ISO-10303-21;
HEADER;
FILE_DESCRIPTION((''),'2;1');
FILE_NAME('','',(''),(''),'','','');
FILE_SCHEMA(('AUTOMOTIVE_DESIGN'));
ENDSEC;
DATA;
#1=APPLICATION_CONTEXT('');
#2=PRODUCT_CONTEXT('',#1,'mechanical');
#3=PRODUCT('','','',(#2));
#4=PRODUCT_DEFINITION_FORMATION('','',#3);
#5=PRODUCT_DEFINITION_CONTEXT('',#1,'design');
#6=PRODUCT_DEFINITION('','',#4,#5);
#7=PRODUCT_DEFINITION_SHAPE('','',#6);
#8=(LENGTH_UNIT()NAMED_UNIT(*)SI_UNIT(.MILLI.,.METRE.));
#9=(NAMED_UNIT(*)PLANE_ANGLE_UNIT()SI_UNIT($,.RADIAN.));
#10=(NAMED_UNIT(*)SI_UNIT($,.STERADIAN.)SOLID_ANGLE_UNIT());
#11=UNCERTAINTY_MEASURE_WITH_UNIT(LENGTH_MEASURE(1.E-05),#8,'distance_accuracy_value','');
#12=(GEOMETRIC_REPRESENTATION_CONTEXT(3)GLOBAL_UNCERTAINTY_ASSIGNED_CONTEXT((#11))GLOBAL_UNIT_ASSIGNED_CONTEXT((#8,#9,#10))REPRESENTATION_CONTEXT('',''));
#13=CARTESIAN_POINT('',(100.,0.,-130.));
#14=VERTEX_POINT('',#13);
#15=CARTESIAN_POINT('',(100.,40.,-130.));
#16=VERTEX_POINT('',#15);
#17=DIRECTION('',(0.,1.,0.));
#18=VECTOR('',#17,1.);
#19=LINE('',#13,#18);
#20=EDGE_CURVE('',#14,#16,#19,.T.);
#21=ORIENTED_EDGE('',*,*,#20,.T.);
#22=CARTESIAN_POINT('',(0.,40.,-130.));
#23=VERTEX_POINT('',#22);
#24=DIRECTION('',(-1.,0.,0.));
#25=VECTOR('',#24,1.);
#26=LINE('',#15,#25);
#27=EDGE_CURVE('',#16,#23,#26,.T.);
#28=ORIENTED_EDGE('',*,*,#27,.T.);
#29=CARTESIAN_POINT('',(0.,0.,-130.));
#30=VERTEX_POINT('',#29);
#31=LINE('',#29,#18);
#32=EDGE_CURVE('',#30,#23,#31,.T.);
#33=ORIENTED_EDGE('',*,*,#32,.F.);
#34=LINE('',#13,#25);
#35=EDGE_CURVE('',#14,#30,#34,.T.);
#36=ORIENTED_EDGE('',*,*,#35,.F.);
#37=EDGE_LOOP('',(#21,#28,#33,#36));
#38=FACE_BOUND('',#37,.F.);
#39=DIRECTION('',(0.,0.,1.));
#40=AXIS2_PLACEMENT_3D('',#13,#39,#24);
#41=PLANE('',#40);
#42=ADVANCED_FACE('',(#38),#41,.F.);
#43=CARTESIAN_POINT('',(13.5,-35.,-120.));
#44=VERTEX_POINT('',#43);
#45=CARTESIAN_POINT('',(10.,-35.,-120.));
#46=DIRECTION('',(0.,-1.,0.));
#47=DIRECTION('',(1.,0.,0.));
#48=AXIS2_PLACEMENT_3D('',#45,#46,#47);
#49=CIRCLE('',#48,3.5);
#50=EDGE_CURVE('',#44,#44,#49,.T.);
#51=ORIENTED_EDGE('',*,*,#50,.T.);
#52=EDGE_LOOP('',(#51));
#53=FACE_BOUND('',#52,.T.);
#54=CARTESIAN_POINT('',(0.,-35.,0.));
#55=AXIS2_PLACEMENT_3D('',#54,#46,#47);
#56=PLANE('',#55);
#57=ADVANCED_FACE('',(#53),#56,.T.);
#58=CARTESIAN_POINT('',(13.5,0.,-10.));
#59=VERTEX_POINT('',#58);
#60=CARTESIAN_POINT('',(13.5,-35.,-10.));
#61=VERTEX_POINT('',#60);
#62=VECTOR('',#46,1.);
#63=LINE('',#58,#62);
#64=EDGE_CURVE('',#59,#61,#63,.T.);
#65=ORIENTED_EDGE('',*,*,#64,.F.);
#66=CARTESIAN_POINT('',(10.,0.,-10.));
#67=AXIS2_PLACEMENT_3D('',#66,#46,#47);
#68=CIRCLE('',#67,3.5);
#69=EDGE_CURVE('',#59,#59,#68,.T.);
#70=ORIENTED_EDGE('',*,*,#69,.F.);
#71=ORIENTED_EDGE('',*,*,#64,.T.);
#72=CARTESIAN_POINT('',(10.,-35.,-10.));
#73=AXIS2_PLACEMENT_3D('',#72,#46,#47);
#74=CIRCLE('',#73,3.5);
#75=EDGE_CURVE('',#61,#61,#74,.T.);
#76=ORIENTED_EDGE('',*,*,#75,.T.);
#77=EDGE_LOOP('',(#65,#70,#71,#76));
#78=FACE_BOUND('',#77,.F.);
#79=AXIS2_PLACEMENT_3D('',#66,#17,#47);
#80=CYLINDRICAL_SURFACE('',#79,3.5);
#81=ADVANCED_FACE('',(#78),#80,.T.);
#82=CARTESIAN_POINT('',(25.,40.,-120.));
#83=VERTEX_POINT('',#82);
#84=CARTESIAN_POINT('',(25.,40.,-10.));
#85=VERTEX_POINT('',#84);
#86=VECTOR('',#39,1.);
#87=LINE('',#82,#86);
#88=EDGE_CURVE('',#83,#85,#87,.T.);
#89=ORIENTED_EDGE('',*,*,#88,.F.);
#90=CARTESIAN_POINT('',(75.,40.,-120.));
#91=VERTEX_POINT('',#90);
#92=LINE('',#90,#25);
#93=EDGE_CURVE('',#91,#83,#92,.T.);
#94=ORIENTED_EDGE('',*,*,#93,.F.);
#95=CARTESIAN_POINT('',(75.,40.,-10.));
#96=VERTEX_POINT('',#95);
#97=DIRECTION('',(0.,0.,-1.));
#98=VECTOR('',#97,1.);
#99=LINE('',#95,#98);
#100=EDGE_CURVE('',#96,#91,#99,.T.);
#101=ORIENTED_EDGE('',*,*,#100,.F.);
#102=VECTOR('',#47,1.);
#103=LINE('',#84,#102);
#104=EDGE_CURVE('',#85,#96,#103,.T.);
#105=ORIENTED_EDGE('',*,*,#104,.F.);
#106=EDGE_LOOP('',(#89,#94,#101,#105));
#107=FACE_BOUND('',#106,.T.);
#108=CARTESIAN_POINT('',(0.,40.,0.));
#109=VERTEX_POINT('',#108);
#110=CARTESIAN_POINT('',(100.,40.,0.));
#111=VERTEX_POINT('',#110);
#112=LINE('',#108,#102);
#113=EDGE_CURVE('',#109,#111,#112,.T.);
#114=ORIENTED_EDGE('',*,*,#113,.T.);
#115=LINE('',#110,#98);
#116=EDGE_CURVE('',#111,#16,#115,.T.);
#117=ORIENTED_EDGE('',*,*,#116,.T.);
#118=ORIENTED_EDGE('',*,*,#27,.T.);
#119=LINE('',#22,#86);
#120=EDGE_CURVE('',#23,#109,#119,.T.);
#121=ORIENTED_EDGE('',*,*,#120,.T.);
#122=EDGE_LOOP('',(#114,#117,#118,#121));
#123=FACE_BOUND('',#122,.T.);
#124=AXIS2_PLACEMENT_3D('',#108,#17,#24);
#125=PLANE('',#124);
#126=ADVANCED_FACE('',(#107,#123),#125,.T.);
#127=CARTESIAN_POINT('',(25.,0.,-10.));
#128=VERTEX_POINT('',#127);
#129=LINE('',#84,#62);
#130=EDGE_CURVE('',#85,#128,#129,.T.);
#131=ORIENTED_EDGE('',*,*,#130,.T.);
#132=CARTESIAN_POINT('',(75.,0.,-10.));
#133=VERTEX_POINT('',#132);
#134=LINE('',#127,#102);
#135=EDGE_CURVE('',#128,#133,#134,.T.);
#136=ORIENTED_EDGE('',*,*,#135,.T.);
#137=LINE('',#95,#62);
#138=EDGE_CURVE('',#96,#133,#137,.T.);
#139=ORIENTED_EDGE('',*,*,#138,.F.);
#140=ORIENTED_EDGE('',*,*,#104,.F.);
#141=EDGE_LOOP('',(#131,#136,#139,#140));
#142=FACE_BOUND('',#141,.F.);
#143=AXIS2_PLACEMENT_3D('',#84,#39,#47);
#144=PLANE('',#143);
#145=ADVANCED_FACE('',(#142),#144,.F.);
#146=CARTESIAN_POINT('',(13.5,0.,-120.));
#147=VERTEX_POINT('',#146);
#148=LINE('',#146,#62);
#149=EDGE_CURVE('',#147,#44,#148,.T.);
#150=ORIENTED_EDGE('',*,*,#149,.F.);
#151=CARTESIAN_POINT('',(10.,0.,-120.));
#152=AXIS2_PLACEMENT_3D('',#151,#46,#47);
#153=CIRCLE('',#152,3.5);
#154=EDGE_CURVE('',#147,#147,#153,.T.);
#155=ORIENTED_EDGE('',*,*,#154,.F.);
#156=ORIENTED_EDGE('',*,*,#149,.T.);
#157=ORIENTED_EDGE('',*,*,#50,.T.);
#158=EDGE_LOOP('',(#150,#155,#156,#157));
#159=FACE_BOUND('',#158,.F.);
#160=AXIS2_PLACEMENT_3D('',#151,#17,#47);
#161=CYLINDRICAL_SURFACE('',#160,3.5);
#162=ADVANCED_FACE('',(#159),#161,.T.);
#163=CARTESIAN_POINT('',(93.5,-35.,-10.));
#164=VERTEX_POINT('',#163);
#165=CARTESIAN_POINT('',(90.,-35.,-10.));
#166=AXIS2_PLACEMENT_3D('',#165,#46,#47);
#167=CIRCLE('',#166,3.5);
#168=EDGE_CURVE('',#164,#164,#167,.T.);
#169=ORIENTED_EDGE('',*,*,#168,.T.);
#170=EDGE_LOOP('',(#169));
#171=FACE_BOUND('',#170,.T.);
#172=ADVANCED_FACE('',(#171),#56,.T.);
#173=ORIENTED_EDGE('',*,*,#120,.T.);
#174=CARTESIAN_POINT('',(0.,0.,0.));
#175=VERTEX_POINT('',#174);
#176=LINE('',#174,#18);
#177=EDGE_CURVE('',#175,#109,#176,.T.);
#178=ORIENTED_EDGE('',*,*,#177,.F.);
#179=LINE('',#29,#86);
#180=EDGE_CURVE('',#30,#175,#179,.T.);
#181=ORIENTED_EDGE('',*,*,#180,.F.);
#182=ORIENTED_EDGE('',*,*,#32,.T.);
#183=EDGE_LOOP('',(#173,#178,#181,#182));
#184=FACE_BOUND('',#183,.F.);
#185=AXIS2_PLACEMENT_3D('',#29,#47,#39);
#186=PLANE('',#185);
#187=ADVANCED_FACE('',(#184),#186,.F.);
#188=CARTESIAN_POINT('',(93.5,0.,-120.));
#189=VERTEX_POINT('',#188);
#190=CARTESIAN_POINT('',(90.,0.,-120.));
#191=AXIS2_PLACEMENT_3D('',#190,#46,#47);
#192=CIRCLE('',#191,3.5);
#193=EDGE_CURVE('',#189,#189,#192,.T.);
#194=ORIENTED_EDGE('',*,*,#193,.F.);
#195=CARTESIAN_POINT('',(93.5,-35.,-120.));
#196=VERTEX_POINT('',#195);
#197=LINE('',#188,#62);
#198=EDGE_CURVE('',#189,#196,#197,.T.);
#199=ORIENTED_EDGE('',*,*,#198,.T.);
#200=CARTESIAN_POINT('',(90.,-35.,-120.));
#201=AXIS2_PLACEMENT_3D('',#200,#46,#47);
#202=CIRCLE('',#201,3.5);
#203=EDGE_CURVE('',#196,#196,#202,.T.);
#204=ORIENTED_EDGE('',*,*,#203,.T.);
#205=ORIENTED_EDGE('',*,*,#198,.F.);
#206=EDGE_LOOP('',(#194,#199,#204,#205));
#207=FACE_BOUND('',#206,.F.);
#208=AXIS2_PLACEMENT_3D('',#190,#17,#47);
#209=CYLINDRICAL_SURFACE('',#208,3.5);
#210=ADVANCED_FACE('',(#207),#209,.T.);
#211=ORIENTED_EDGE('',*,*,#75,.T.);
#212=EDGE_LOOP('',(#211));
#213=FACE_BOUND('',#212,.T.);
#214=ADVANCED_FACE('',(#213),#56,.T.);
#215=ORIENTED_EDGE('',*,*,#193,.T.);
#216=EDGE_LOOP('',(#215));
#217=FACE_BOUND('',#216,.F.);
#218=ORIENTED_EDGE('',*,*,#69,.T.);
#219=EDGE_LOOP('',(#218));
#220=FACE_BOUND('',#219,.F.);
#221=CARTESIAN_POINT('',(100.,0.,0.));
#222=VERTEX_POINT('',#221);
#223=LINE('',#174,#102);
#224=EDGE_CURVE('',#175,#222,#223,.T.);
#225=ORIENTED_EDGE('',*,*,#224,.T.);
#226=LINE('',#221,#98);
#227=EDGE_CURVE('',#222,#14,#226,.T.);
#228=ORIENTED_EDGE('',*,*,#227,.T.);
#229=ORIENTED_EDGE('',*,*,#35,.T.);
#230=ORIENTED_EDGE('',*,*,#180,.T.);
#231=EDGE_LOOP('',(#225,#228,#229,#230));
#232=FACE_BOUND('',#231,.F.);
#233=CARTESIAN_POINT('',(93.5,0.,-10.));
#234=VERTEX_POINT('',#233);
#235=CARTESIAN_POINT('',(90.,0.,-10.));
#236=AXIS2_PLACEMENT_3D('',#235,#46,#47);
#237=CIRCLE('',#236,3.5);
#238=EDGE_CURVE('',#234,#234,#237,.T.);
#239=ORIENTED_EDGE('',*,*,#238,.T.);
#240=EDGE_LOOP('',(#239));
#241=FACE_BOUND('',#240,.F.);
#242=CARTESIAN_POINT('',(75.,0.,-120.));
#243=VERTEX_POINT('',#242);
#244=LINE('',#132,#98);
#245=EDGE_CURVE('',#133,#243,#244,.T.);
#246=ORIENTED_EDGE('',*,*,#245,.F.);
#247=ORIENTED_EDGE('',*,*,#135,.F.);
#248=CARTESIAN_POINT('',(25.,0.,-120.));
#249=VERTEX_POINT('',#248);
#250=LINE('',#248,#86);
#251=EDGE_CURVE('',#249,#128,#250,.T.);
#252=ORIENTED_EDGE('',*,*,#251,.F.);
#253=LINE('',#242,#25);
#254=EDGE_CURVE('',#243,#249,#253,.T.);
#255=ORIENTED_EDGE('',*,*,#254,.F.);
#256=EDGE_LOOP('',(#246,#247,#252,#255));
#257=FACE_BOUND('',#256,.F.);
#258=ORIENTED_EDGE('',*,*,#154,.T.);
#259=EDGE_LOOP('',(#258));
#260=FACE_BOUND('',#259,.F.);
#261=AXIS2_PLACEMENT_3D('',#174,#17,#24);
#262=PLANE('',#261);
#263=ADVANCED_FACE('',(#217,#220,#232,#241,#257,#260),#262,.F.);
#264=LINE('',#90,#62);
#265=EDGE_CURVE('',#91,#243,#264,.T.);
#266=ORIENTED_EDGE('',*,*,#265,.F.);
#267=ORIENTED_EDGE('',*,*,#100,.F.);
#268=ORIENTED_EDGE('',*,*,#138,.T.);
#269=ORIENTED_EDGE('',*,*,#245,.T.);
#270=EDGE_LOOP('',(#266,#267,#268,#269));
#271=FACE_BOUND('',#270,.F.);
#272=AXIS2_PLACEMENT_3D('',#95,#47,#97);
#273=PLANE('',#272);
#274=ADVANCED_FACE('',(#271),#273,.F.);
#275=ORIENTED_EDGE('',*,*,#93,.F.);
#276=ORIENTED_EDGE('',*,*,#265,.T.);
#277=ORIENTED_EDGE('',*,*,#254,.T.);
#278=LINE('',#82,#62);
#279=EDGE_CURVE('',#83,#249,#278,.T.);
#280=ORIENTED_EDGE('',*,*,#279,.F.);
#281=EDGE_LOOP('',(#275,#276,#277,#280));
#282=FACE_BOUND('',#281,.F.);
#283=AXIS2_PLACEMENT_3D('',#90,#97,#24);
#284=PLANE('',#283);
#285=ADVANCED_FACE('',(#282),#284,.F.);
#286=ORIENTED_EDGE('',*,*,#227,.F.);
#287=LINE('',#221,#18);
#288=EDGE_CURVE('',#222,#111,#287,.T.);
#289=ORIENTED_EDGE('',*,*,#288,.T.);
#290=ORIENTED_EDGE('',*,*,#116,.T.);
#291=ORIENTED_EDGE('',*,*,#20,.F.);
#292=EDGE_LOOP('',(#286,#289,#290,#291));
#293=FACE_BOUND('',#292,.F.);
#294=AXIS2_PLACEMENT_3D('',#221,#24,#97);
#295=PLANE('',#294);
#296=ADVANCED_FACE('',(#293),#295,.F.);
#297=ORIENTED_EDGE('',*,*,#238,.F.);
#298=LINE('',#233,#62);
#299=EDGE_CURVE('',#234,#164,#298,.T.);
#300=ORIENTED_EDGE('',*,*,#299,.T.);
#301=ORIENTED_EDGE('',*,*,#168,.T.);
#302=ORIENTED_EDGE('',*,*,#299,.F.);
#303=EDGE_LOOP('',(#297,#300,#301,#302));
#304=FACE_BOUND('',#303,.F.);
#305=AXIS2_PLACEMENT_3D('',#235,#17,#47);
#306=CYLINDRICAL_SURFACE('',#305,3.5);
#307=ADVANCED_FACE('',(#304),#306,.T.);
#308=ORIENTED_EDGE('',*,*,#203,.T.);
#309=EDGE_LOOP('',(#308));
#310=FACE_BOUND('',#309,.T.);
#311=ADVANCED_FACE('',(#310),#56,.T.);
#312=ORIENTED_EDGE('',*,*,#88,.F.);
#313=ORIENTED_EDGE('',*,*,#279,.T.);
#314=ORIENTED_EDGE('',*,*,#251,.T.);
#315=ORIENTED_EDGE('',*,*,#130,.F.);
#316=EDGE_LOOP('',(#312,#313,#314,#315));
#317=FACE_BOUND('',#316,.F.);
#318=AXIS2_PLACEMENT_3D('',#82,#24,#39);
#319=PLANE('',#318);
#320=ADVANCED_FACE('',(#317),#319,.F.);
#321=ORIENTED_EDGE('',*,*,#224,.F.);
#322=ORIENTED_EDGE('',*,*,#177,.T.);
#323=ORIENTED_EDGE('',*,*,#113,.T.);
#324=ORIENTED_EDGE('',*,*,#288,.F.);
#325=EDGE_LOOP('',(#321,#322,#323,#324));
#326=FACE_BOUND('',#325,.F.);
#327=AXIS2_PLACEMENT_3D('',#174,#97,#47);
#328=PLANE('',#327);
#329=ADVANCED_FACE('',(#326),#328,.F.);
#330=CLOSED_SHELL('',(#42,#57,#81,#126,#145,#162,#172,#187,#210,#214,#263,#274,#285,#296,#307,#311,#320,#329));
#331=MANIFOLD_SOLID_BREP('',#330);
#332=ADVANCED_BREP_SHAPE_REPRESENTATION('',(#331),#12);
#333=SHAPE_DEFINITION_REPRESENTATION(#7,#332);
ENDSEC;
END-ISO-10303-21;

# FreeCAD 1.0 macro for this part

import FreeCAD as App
import Part
import Sketcher
from FreeCAD import Vector
Q = App.Units.Quantity


def add_polygon(sketch, points):
    """Adds a closed chain of lines whose ends are joined by coincident constraints."""
    first, n = sketch.GeometryCount, len(points)
    for a, b in zip(points, points[1:] + points[:1]):
        sketch.addGeometry(Part.LineSegment(App.Vector(*a, 0), App.Vector(*b, 0)), False)
    for i in range(n):
        sketch.addConstraint(Sketcher.Constraint("Coincident", first + i, 2, first + (i + 1) % n, 1))

doc = App.newDocument("Part")
body = doc.addObject("PartDesign::Body", "Body")

sketch1 = body.newObject("Sketcher::SketchObject", "Sketch")
sketch1.AttachmentSupport = (doc.getObject("XZ_Plane"), [""])
sketch1.MapMode = "FlatFace"
add_polygon(sketch1, [(0, -130), (0, 0), (100, 0), (100, -130)])
sketch1.addConstraint(Sketcher.Constraint("Vertical", 0))
sketch1.addConstraint(Sketcher.Constraint("Horizontal", 1))
sketch1.addConstraint(Sketcher.Constraint("Vertical", 2))
sketch1.addConstraint(Sketcher.Constraint("Horizontal", 3))
sketch1.addConstraint(Sketcher.Constraint("Coincident", 0, 2, -1, 1))
sketch1.addConstraint(Sketcher.Constraint("DistanceX", 1, 1, 1, 2, Q("100 mm")))
sketch1.addConstraint(Sketcher.Constraint("DistanceY", 0, 1, 0, 2, Q("130 mm")))
pad1 = body.newObject("PartDesign::Pad", "Pad")
pad1.Profile = sketch1
pad1.Length = 40
pad1.Reversed = True

sketch2 = body.newObject("Sketcher::SketchObject", "Sketch001")
sketch2.AttachmentSupport = (doc.getObject("XZ_Plane"), [""])
sketch2.MapMode = "FlatFace"
sketch2.AttachmentOffset = App.Placement(Vector(0, 0, -40), App.Rotation())
add_polygon(sketch2, [(25, -120), (25, -10), (75, -10), (75, -120)])
sketch2.addConstraint(Sketcher.Constraint("Vertical", 0))
sketch2.addConstraint(Sketcher.Constraint("Horizontal", 1))
sketch2.addConstraint(Sketcher.Constraint("Vertical", 2))
sketch2.addConstraint(Sketcher.Constraint("Horizontal", 3))
sketch2.addConstraint(Sketcher.Constraint("DistanceX", -1, 1, 0, 2, Q("25 mm")))
sketch2.addConstraint(Sketcher.Constraint("DistanceY", 0, 2, -1, 1, Q("10 mm")))
sketch2.addConstraint(Sketcher.Constraint("DistanceX", 1, 1, 1, 2, Q("50 mm")))
sketch2.addConstraint(Sketcher.Constraint("DistanceY", 0, 1, 0, 2, Q("110 mm")))
pocket1 = body.newObject("PartDesign::Pocket", "Pocket")
pocket1.Profile = sketch2
pocket1.Length = 40
pocket1.Reversed = True

sketch3 = body.newObject("Sketcher::SketchObject", "Sketch002")
sketch3.AttachmentSupport = (doc.getObject("XZ_Plane"), [""])
sketch3.MapMode = "FlatFace"
sketch3.addGeometry(Part.Circle(Vector(90, -10, 0), Vector(0, 0, 1), 3.5), False)
sketch3.addGeometry(Part.Circle(Vector(90, -120, 0), Vector(0, 0, 1), 3.5), False)
sketch3.addGeometry(Part.Circle(Vector(10, -10, 0), Vector(0, 0, 1), 3.5), False)
sketch3.addGeometry(Part.Circle(Vector(10, -120, 0), Vector(0, 0, 1), 3.5), False)
sketch3.addConstraint(Sketcher.Constraint("Equal", 0, 1))
sketch3.addConstraint(Sketcher.Constraint("Equal", 1, 2))
sketch3.addConstraint(Sketcher.Constraint("Equal", 2, 3))
sketch3.addConstraint(Sketcher.Constraint("Horizontal", 0, 3, 2, 3))
sketch3.addConstraint(Sketcher.Constraint("Horizontal", 1, 3, 3, 3))
sketch3.addConstraint(Sketcher.Constraint("Vertical", 0, 3, 1, 3))
sketch3.addConstraint(Sketcher.Constraint("Vertical", 2, 3, 3, 3))
sketch3.addConstraint(Sketcher.Constraint("Diameter", 0, Q("7 mm")))
sketch3.addConstraint(Sketcher.Constraint("DistanceY", 0, 3, -1, 1, Q("10 mm")))
sketch3.addConstraint(Sketcher.Constraint("DistanceX", -1, 1, 2, 3, Q("10 mm")))
sketch3.addConstraint(Sketcher.Constraint("DistanceX", -1, 1, 0, 3, Q("90 mm")))
sketch3.addConstraint(Sketcher.Constraint("DistanceY", 1, 3, -1, 1, Q("120 mm")))
pad2 = body.newObject("PartDesign::Pad", "Pad001")
pad2.Profile = sketch3
pad2.Length = 35

doc.recompute()
